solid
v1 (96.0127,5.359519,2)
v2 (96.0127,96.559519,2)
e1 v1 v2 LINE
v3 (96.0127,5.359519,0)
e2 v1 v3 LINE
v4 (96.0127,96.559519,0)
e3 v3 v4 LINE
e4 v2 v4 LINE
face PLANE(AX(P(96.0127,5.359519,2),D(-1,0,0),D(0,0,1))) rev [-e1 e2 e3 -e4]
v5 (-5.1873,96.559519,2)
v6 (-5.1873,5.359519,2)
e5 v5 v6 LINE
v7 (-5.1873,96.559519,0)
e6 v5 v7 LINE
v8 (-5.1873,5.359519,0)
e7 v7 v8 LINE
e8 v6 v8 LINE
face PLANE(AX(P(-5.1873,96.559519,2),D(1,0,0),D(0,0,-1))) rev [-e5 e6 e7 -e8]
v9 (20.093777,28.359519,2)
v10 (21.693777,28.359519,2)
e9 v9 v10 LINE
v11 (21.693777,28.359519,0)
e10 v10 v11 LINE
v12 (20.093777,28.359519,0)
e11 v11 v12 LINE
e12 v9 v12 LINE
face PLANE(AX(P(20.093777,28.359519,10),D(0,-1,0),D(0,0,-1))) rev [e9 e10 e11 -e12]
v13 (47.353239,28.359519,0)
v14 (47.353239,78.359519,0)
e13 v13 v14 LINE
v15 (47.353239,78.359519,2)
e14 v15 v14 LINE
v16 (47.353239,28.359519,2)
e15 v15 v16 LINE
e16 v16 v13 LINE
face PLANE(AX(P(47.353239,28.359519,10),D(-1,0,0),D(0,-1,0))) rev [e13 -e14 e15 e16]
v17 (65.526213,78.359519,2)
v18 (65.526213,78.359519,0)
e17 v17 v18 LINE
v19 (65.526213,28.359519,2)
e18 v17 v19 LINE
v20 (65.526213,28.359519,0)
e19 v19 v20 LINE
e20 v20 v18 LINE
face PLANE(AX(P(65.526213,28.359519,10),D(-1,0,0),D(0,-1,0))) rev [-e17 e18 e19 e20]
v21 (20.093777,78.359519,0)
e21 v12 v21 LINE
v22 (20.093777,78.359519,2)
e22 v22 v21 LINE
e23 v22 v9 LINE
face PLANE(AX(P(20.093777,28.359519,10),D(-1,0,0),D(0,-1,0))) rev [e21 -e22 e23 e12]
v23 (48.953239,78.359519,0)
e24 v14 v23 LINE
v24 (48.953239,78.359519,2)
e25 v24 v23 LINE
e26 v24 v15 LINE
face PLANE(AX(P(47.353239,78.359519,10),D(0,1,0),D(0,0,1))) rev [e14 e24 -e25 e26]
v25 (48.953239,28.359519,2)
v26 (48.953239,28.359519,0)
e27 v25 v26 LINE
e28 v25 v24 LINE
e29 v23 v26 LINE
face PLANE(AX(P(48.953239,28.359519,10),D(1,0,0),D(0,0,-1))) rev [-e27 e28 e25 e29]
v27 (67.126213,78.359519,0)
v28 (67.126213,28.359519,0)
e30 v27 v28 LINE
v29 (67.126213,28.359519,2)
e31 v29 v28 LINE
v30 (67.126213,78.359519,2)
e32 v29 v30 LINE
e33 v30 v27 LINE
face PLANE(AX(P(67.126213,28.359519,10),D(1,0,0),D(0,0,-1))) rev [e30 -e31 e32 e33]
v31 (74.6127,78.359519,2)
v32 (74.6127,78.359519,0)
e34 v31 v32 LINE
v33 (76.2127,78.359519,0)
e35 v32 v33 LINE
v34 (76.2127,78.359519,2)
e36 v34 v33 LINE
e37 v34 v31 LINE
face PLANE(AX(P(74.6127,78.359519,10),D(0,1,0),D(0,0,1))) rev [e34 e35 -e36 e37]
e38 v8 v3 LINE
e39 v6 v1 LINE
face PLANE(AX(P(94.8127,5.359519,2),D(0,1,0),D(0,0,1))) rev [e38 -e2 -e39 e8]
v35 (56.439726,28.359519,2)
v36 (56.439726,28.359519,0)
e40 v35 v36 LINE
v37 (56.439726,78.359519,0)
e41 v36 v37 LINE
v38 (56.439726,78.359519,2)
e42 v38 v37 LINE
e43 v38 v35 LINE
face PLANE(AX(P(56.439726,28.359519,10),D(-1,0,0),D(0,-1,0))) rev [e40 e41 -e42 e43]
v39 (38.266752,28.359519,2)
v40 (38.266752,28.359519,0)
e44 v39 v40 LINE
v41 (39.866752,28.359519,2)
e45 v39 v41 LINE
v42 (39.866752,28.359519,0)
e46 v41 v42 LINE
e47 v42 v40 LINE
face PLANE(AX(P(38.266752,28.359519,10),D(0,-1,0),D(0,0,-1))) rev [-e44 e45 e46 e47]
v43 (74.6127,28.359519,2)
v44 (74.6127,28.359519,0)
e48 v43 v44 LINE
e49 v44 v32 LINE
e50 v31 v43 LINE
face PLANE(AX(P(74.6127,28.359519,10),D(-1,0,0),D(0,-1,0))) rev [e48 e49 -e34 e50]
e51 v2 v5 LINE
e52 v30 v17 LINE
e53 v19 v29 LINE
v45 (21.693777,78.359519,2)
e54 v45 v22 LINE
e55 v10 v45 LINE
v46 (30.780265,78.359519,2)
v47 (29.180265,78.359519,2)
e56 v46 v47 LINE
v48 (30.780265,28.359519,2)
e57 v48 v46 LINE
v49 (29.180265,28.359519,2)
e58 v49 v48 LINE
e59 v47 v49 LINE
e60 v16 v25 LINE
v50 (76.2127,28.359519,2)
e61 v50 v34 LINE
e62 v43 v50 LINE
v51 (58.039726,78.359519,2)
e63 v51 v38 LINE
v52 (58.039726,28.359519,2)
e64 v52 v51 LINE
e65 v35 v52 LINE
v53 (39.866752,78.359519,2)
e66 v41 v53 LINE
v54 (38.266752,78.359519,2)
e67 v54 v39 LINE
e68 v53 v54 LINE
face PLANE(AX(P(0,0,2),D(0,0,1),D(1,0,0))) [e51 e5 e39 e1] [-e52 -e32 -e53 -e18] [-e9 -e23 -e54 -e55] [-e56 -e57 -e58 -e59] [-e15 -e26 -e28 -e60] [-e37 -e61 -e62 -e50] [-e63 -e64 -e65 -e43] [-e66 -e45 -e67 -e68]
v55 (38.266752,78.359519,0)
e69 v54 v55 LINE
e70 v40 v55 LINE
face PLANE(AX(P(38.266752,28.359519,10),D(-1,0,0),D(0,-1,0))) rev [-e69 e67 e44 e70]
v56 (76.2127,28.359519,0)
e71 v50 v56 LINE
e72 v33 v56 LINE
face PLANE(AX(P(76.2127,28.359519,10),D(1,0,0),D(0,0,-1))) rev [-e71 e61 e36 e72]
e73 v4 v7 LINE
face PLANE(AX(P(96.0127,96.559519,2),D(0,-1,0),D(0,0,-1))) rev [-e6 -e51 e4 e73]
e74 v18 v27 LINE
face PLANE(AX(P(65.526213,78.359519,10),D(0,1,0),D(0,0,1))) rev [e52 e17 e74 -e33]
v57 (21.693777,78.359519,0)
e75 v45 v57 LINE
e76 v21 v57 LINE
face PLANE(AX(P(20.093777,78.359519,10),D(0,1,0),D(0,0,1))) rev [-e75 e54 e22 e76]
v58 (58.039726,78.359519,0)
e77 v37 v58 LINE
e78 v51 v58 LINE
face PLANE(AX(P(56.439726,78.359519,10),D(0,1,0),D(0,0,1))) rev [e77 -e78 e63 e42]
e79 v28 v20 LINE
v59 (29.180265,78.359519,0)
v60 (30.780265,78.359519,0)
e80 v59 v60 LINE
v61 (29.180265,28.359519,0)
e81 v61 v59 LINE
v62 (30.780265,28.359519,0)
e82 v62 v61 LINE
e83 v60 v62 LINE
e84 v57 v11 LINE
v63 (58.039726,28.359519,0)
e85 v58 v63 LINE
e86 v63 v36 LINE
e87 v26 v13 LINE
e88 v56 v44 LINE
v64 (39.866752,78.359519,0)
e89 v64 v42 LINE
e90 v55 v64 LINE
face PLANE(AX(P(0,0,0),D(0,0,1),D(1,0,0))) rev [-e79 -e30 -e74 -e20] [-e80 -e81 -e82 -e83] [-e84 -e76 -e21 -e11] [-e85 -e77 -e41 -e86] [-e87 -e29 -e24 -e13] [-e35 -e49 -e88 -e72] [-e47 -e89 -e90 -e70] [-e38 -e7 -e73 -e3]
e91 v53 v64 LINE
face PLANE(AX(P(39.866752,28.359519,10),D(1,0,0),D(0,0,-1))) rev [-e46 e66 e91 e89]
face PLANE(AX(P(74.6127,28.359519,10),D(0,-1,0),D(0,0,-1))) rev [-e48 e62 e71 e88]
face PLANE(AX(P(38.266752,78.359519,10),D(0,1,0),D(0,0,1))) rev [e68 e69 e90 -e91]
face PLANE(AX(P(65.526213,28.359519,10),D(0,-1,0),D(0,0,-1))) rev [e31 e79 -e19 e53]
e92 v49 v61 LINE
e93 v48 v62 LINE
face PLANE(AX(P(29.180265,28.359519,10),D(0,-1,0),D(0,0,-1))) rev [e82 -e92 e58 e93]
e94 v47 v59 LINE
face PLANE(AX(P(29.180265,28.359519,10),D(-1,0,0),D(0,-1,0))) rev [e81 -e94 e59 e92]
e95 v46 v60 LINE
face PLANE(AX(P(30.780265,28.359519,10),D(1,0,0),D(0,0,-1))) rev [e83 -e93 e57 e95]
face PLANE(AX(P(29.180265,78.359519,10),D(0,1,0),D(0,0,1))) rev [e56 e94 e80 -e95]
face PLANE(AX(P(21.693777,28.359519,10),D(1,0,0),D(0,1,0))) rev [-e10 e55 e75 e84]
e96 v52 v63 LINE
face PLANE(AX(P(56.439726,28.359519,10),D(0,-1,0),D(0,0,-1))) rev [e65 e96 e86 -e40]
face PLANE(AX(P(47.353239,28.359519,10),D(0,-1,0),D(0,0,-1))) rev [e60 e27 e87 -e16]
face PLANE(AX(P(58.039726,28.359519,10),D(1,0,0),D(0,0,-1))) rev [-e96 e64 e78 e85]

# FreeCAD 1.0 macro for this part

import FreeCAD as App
import Part
import Sketcher
Q = App.Units.Quantity

doc = App.newDocument("Part")
body = doc.addObject("PartDesign::Body", "Body")

# Sketch on XY plane
sketch1 = body.newObject("Sketcher::SketchObject", "Sketch")
sketch1.AttachmentSupport = (doc.getObject("XY_Plane"), [""])
sketch1.MapMode = "FlatFace"
sketch1.addGeometry([
    Part.LineSegment(App.Vector(96.0127, 5.359519, 0), App.Vector(96.0127, 96.559519, 0)),
    Part.LineSegment(App.Vector(96.0127, 96.559519, 0), App.Vector(-5.1873, 96.559519, 0)),
    Part.LineSegment(App.Vector(-5.1873, 96.559519, 0), App.Vector(-5.1873, 5.359519, 0)),
    Part.LineSegment(App.Vector(-5.1873, 5.359519, 0), App.Vector(96.0127, 5.359519, 0)),
], False)
sketch1.addConstraint([
    Sketcher.Constraint("Coincident", 0, 2, 1, 1),
    Sketcher.Constraint("Coincident", 1, 2, 2, 1),
    Sketcher.Constraint("Coincident", 2, 2, 3, 1),
    Sketcher.Constraint("Coincident", 3, 2, 0, 1),
    Sketcher.Constraint("Vertical", 0),
    Sketcher.Constraint("Horizontal", 1),
    Sketcher.Constraint("Vertical", 2),
    Sketcher.Constraint("Horizontal", 3),
    Sketcher.Constraint("DistanceX", 1, 2, 1, 1, Q("101.2 mm")),
    Sketcher.Constraint("DistanceY", 0, 1, 0, 2, Q("91.2 mm")),
    Sketcher.Constraint("DistanceX", -1, 1, 0, 2, Q("96.0127 mm")),
    Sketcher.Constraint("DistanceY", -1, 1, 0, 2, Q("96.559519 mm")),
])
pad1 = body.newObject("PartDesign::Pad", "Pad")
pad1.Profile = sketch1
pad1.Length = 2

# Sketch on XY plane
sketch2 = body.newObject("Sketcher::SketchObject", "Sketch001")
sketch2.AttachmentSupport = (doc.getObject("XY_Plane"), [""])
sketch2.MapMode = "FlatFace"
sketch2.addGeometry([
    Part.LineSegment(App.Vector(20.093777, 28.359519, 0), App.Vector(20.093777, 78.359519, 0)),  # 0
    Part.LineSegment(App.Vector(20.093777, 78.359519, 0), App.Vector(21.693777, 78.359519, 0)),  # 1
    Part.LineSegment(App.Vector(21.693777, 78.359519, 0), App.Vector(21.693777, 28.359519, 0)),  # 2
    Part.LineSegment(App.Vector(21.693777, 28.359519, 0), App.Vector(20.093777, 28.359519, 0)),  # 3
    Part.LineSegment(App.Vector(29.180265, 28.359519, 0), App.Vector(29.180265, 78.359519, 0)),  # 4
    Part.LineSegment(App.Vector(29.180265, 78.359519, 0), App.Vector(30.780265, 78.359519, 0)),  # 5
    Part.LineSegment(App.Vector(30.780265, 78.359519, 0), App.Vector(30.780265, 28.359519, 0)),  # 6
    Part.LineSegment(App.Vector(30.780265, 28.359519, 0), App.Vector(29.180265, 28.359519, 0)),  # 7
    Part.LineSegment(App.Vector(38.266752, 28.359519, 0), App.Vector(38.266752, 78.359519, 0)),  # 8
    Part.LineSegment(App.Vector(38.266752, 78.359519, 0), App.Vector(39.866752, 78.359519, 0)),  # 9
    Part.LineSegment(App.Vector(39.866752, 78.359519, 0), App.Vector(39.866752, 28.359519, 0)),  # 10
    Part.LineSegment(App.Vector(39.866752, 28.359519, 0), App.Vector(38.266752, 28.359519, 0)),  # 11
    Part.LineSegment(App.Vector(47.353239, 28.359519, 0), App.Vector(47.353239, 78.359519, 0)),  # 12
    Part.LineSegment(App.Vector(47.353239, 78.359519, 0), App.Vector(48.953239, 78.359519, 0)),  # 13
    Part.LineSegment(App.Vector(48.953239, 78.359519, 0), App.Vector(48.953239, 28.359519, 0)),  # 14
    Part.LineSegment(App.Vector(48.953239, 28.359519, 0), App.Vector(47.353239, 28.359519, 0)),  # 15
    Part.LineSegment(App.Vector(56.439726, 28.359519, 0), App.Vector(56.439726, 78.359519, 0)),  # 16
    Part.LineSegment(App.Vector(56.439726, 78.359519, 0), App.Vector(58.039726, 78.359519, 0)),  # 17
    Part.LineSegment(App.Vector(58.039726, 78.359519, 0), App.Vector(58.039726, 28.359519, 0)),  # 18
    Part.LineSegment(App.Vector(58.039726, 28.359519, 0), App.Vector(56.439726, 28.359519, 0)),  # 19
    Part.LineSegment(App.Vector(65.526213, 28.359519, 0), App.Vector(65.526213, 78.359519, 0)),  # 20
    Part.LineSegment(App.Vector(65.526213, 78.359519, 0), App.Vector(67.126213, 78.359519, 0)),  # 21
    Part.LineSegment(App.Vector(67.126213, 78.359519, 0), App.Vector(67.126213, 28.359519, 0)),  # 22
    Part.LineSegment(App.Vector(67.126213, 28.359519, 0), App.Vector(65.526213, 28.359519, 0)),  # 23
    Part.LineSegment(App.Vector(74.6127, 28.359519, 0), App.Vector(74.6127, 78.359519, 0)),  # 24
    Part.LineSegment(App.Vector(74.6127, 78.359519, 0), App.Vector(76.2127, 78.359519, 0)),  # 25
    Part.LineSegment(App.Vector(76.2127, 78.359519, 0), App.Vector(76.2127, 28.359519, 0)),  # 26
    Part.LineSegment(App.Vector(76.2127, 28.359519, 0), App.Vector(74.6127, 28.359519, 0)),  # 27
], False)
sketch2.addConstraint([
    Sketcher.Constraint("Coincident", 0, 2, 1, 1),
    Sketcher.Constraint("Coincident", 1, 2, 2, 1),
    Sketcher.Constraint("Coincident", 2, 2, 3, 1),
    Sketcher.Constraint("Coincident", 3, 2, 0, 1),
    Sketcher.Constraint("Coincident", 4, 2, 5, 1),
    Sketcher.Constraint("Coincident", 5, 2, 6, 1),
    Sketcher.Constraint("Coincident", 6, 2, 7, 1),
    Sketcher.Constraint("Coincident", 7, 2, 4, 1),
    Sketcher.Constraint("Coincident", 8, 2, 9, 1),
    Sketcher.Constraint("Coincident", 9, 2, 10, 1),
    Sketcher.Constraint("Coincident", 10, 2, 11, 1),
    Sketcher.Constraint("Coincident", 11, 2, 8, 1),
    Sketcher.Constraint("Coincident", 12, 2, 13, 1),
    Sketcher.Constraint("Coincident", 13, 2, 14, 1),
    Sketcher.Constraint("Coincident", 14, 2, 15, 1),
    Sketcher.Constraint("Coincident", 15, 2, 12, 1),
    Sketcher.Constraint("Coincident", 16, 2, 17, 1),
    Sketcher.Constraint("Coincident", 17, 2, 18, 1),
    Sketcher.Constraint("Coincident", 18, 2, 19, 1),
    Sketcher.Constraint("Coincident", 19, 2, 16, 1),
    Sketcher.Constraint("Coincident", 20, 2, 21, 1),
    Sketcher.Constraint("Coincident", 21, 2, 22, 1),
    Sketcher.Constraint("Coincident", 22, 2, 23, 1),
    Sketcher.Constraint("Coincident", 23, 2, 20, 1),
    Sketcher.Constraint("Coincident", 24, 2, 25, 1),
    Sketcher.Constraint("Coincident", 25, 2, 26, 1),
    Sketcher.Constraint("Coincident", 26, 2, 27, 1),
    Sketcher.Constraint("Coincident", 27, 2, 24, 1),
    Sketcher.Constraint("Vertical", 0),
    Sketcher.Constraint("Horizontal", 1),
    Sketcher.Constraint("Vertical", 2),
    Sketcher.Constraint("Horizontal", 3),
    Sketcher.Constraint("Vertical", 4),
    Sketcher.Constraint("Horizontal", 5),
    Sketcher.Constraint("Vertical", 6),
    Sketcher.Constraint("Horizontal", 7),
    Sketcher.Constraint("Vertical", 8),
    Sketcher.Constraint("Horizontal", 9),
    Sketcher.Constraint("Vertical", 10),
    Sketcher.Constraint("Horizontal", 11),
    Sketcher.Constraint("Vertical", 12),
    Sketcher.Constraint("Horizontal", 13),
    Sketcher.Constraint("Vertical", 14),
    Sketcher.Constraint("Horizontal", 15),
    Sketcher.Constraint("Vertical", 16),
    Sketcher.Constraint("Horizontal", 17),
    Sketcher.Constraint("Vertical", 18),
    Sketcher.Constraint("Horizontal", 19),
    Sketcher.Constraint("Vertical", 20),
    Sketcher.Constraint("Horizontal", 21),
    Sketcher.Constraint("Vertical", 22),
    Sketcher.Constraint("Horizontal", 23),
    Sketcher.Constraint("Vertical", 24),
    Sketcher.Constraint("Horizontal", 25),
    Sketcher.Constraint("Vertical", 26),
    Sketcher.Constraint("Horizontal", 27),
    Sketcher.Constraint("Horizontal", 1, 2, 4, 2),
    Sketcher.Constraint("Horizontal", 3, 2, 6, 2),
    Sketcher.Constraint("Horizontal", 5, 2, 8, 2),
    Sketcher.Constraint("Horizontal", 7, 2, 10, 2),
    Sketcher.Constraint("Horizontal", 9, 2, 12, 2),
    Sketcher.Constraint("Horizontal", 11, 2, 14, 2),
    Sketcher.Constraint("Horizontal", 13, 2, 16, 2),
    Sketcher.Constraint("Horizontal", 15, 2, 18, 2),
    Sketcher.Constraint("Horizontal", 17, 2, 20, 2),
    Sketcher.Constraint("Horizontal", 19, 2, 22, 2),
    Sketcher.Constraint("Horizontal", 21, 2, 24, 2),
    Sketcher.Constraint("Horizontal", 23, 2, 26, 2),
    Sketcher.Constraint("Equal", 3, 5),
    Sketcher.Constraint("Equal", 7, 9),
    Sketcher.Constraint("Equal", 11, 13),
    Sketcher.Constraint("Equal", 15, 17),
    Sketcher.Constraint("Equal", 19, 21),
    Sketcher.Constraint("Equal", 23, 25),
    Sketcher.Constraint("DistanceY", 0, 1, 0, 2, Q("50 mm")),
    Sketcher.Constraint("DistanceX", 1, 1, 1, 2, Q("1.6 mm")),
    Sketcher.Constraint("DistanceX", -1, 1, 24, 2, Q("74.6127 mm")),
    Sketcher.Constraint("DistanceY", -1, 1, 0, 2, Q("78.359519 mm")),
    Sketcher.Constraint("DistanceX", -1, 1, 8, 2, Q("38.266752 mm")),
    Sketcher.Constraint("DistanceX", -1, 1, 12, 2, Q("47.353239 mm")),
    Sketcher.Constraint("DistanceX", 1, 2, 12, 2, Q("25.659461 mm")),
    Sketcher.Constraint("DistanceX", 5, 2, 16, 2, Q("25.659461 mm")),
    Sketcher.Constraint("DistanceX", 9, 2, 20, 2, Q("25.659461 mm")),
    Sketcher.Constraint("DistanceX", -1, 1, 4, 2, Q("29.180265 mm")),
])
pocket1 = body.newObject("PartDesign::Pocket", "Pocket")
pocket1.Profile = sketch2
pocket1.Length = 10
pocket1.Reversed = True

doc.recompute()
